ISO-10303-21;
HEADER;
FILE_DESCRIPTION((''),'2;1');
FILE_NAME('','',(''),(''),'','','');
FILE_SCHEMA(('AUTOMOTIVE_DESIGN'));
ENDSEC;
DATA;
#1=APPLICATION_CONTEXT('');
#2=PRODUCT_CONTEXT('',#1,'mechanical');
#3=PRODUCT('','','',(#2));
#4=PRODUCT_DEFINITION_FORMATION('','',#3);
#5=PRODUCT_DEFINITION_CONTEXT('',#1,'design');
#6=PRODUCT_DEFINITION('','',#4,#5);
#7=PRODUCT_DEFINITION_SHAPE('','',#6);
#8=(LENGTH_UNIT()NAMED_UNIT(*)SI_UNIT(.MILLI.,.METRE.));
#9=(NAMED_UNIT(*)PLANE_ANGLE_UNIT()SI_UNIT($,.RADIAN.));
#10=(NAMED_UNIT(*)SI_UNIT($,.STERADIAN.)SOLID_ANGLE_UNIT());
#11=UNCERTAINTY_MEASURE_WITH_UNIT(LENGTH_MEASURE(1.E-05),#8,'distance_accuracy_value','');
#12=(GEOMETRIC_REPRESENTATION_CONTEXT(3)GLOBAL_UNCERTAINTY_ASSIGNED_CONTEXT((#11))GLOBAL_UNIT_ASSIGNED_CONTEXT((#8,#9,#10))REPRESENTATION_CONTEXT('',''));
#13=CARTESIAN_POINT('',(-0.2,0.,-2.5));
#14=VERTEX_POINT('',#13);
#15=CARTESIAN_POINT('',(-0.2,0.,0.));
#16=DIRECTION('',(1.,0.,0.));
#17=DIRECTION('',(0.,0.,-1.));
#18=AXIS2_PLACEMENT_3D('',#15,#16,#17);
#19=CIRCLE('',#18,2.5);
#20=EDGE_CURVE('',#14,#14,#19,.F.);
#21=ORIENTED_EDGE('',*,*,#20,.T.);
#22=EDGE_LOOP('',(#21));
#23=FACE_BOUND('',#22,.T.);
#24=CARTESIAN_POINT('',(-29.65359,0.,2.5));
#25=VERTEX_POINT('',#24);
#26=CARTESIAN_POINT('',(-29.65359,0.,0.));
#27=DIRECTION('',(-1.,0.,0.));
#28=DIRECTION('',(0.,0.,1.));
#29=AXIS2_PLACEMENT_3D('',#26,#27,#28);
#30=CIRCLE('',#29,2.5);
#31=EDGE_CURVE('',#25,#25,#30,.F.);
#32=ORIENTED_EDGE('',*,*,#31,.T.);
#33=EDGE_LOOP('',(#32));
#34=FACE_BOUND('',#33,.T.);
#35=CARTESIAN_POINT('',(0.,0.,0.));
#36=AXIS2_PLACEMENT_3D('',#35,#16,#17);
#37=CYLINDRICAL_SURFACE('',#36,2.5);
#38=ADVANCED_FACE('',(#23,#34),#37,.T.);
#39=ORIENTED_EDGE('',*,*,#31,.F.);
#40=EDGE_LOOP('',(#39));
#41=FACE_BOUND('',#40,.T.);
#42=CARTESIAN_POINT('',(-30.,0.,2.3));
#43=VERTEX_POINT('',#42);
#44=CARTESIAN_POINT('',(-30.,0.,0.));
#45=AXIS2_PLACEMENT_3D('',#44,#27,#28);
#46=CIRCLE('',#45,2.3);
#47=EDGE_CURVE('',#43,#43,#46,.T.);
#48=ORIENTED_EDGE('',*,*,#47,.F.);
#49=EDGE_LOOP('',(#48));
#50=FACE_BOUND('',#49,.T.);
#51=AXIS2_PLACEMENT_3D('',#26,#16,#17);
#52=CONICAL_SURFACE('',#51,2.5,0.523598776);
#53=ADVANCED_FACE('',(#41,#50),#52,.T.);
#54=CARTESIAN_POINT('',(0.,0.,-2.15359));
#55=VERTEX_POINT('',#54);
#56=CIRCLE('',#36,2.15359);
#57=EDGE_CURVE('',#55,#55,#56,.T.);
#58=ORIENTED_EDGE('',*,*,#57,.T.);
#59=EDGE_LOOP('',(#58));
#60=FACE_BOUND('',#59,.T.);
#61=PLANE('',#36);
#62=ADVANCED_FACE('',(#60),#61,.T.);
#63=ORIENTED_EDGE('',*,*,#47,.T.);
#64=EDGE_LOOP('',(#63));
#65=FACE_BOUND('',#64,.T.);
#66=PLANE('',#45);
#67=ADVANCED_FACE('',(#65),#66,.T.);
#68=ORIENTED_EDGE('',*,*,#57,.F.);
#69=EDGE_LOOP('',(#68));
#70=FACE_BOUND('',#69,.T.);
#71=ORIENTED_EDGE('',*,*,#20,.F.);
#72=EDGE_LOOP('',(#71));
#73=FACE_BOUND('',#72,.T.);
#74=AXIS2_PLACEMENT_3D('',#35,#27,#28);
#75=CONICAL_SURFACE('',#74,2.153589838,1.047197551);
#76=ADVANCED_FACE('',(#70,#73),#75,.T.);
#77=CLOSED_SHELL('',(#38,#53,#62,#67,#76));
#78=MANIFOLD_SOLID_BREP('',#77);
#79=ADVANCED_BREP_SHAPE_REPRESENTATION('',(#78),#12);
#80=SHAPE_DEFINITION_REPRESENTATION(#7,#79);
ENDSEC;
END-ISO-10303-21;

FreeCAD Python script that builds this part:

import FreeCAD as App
import Part
import Sketcher
Q = App.Units.Quantity


def edges_at(feature, points):
    """Names of the edges that pass closest to the given points."""
    edges = feature.Shape.Edges
    near = lambda p: min(range(len(edges)), key=lambda i: edges[i].distToShape(Part.Vertex(*p))[0])
    return sorted({f"Edge{near(p) + 1}" for p in points})


def add_polygon(sketch, points):
    """Adds a closed chain of lines whose ends are joined by coincident constraints."""
    first, n = sketch.GeometryCount, len(points)
    for a, b in zip(points, points[1:] + points[:1]):
        sketch.addGeometry(Part.LineSegment(App.Vector(*a, 0), App.Vector(*b, 0)), False)
    for i in range(n):
        sketch.addConstraint(Sketcher.Constraint("Coincident", first + i, 2, first + (i + 1) % n, 1))

doc = App.newDocument("Part")
body = doc.addObject("PartDesign::Body", "Body")

sketch1 = body.newObject("Sketcher::SketchObject", "Sketch")
sketch1.AttachmentSupport = (doc.getObject("XY_Plane"), [""])
sketch1.MapMode = "FlatFace"
add_polygon(sketch1, [(-30, 2.5), (-30, 0), (0, 0), (0, 2.5)])
sketch1.addConstraint([
    Sketcher.Constraint("Vertical", 0),
    Sketcher.Constraint("Horizontal", 1),
    Sketcher.Constraint("Vertical", 2),
    Sketcher.Constraint("Horizontal", 3),
    Sketcher.Constraint("Coincident", 1, 2, -1, 1),
    Sketcher.Constraint("DistanceX", 1, 1, 1, 2, Q("30 mm")),
    Sketcher.Constraint("DistanceY", 0, 2, 0, 1, Q("2.5 mm")),
])
revolution = body.newObject("PartDesign::Revolution", "Revolution")
revolution.Profile = sketch1
revolution.ReferenceAxis = (sketch1, ["H_Axis"])
revolution.Angle = 360
doc.recompute()

chamfer = body.newObject("PartDesign::Chamfer", "Chamfer")
chamfer.Base = (revolution, edges_at(revolution, [(-30, -2.5, 0)]))
chamfer.ChamferType = "Two distances"
chamfer.Size = 0.2
chamfer.Size2 = 0.34641
doc.recompute()

chamfer2 = body.newObject("PartDesign::Chamfer", "Chamfer001")
chamfer2.Base = (chamfer, edges_at(chamfer, [(0, -2.5, 0)]))
chamfer2.ChamferType = "Two distances"
chamfer2.Size = 0.2
chamfer2.Size2 = 0.34641

doc.recompute()
